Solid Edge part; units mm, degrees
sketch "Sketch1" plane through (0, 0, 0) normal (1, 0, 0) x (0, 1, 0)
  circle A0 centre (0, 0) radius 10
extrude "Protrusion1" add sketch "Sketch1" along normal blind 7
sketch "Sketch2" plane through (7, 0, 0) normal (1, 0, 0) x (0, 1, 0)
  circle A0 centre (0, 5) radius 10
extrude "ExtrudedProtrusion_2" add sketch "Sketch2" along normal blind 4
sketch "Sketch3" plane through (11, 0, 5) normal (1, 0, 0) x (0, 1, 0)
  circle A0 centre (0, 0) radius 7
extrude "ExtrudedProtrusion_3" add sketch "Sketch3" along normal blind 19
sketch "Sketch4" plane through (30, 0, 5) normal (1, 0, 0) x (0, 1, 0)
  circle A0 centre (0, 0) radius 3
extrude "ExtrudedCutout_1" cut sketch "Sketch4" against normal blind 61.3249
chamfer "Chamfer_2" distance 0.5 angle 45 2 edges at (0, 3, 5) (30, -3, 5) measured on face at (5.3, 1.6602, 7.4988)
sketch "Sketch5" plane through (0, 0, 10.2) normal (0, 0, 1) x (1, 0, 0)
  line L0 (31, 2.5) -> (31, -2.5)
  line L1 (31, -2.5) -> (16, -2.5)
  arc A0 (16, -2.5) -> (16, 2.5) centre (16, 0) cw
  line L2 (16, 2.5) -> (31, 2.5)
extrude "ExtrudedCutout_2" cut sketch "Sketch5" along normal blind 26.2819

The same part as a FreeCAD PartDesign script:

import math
import FreeCAD as App
import Part
import Sketcher
from FreeCAD import Vector


def edges_at(feature, points):
    """Names of the edges that pass closest to the given points."""
    edges = feature.Shape.Edges
    near = lambda p: min(range(len(edges)), key=lambda i: edges[i].distToShape(Part.Vertex(*p))[0])
    return sorted({f"Edge{near(p) + 1}" for p in points})

doc = App.newDocument("Part")
body = doc.addObject("PartDesign::Body", "Body")

# Sketch on YZ plane
sketch1 = body.newObject("Sketcher::SketchObject", "Sketch")
sketch1.AttachmentSupport = (doc.getObject("YZ_Plane"), [""])
sketch1.MapMode = "FlatFace"
sketch1.addGeometry(Part.Circle(Vector(0, 0, 0), Vector(0, 0, 1), 10), False)
sketch1.addConstraint([
    Sketcher.Constraint("Coincident", 0, 3, -1, 1),
    Sketcher.Constraint("Diameter", 0, 20.0),
])
pad1 = body.newObject("PartDesign::Pad", "Pad")
pad1.Profile = sketch1
pad1.Length = 7

# Sketch on YZ plane
sketch2 = body.newObject("Sketcher::SketchObject", "Sketch001")
sketch2.AttachmentSupport = (doc.getObject("YZ_Plane"), [""])
sketch2.MapMode = "FlatFace"
sketch2.AttachmentOffset = App.Placement(Vector(0, 0, 7), App.Rotation())
sketch2.addGeometry(Part.Circle(Vector(0, 5, 0), Vector(0, 0, 1), 10), False)
sketch2.addConstraint([
    Sketcher.Constraint("PointOnObject", 0, 3, -2),
    Sketcher.Constraint("Diameter", 0, 20.0),
    Sketcher.Constraint("DistanceY", -1, 1, 0, 3, 5.0),
])
pad2 = body.newObject("PartDesign::Pad", "Pad001")
pad2.Profile = sketch2
pad2.Length = 4

# Sketch on YZ plane
sketch3 = body.newObject("Sketcher::SketchObject", "Sketch002")
sketch3.AttachmentSupport = (doc.getObject("YZ_Plane"), [""])
sketch3.MapMode = "FlatFace"
sketch3.AttachmentOffset = App.Placement(Vector(0, 0, 11), App.Rotation())
sketch3.addGeometry(Part.Circle(Vector(0, 5, 0), Vector(0, 0, 1), 7), False)
sketch3.addConstraint([
    Sketcher.Constraint("PointOnObject", 0, 3, -2),
    Sketcher.Constraint("Diameter", 0, 14.0),
    Sketcher.Constraint("DistanceY", -1, 1, 0, 3, 5.0),
])
pad3 = body.newObject("PartDesign::Pad", "Pad002")
pad3.Profile = sketch3
pad3.Length = 19

# Sketch on YZ plane
sketch4 = body.newObject("Sketcher::SketchObject", "Sketch003")
sketch4.AttachmentSupport = (doc.getObject("YZ_Plane"), [""])
sketch4.MapMode = "FlatFace"
sketch4.AttachmentOffset = App.Placement(Vector(0, 0, 30), App.Rotation())
sketch4.addGeometry(Part.Circle(Vector(0, 5, 0), Vector(0, 0, 1), 3), False)
sketch4.addConstraint([
    Sketcher.Constraint("PointOnObject", 0, 3, -2),
    Sketcher.Constraint("Diameter", 0, 6.0),
    Sketcher.Constraint("DistanceY", -1, 1, 0, 3, 5.0),
])
pocket1 = body.newObject("PartDesign::Pocket", "Pocket")
pocket1.Profile = sketch4
pocket1.Length = 61.3249
doc.recompute()

chamfer = body.newObject("PartDesign::Chamfer", "Chamfer")
chamfer.Base = (pocket1, edges_at(pocket1, [(0, 3, 5), (30, -3, 5)]))
chamfer.Size = 0.5

# Sketch on XY plane
sketch5 = body.newObject("Sketcher::SketchObject", "Sketch004")
sketch5.AttachmentSupport = (doc.getObject("XY_Plane"), [""])
sketch5.MapMode = "FlatFace"
sketch5.AttachmentOffset = App.Placement(Vector(0, 0, 10.2), App.Rotation())
sketch5.addGeometry([
    Part.LineSegment(Vector(31, -2.5, 0), Vector(31, 2.5, 0)),
    Part.LineSegment(Vector(31, 2.5, 0), Vector(16, 2.5, 0)),
    Part.ArcOfCircle(Part.Circle(Vector(16, 0, 0), Vector(0, 0, 1), 2.5), math.radians(90), math.radians(270)),
    Part.LineSegment(Vector(16, -2.5, 0), Vector(31, -2.5, 0)),
], False)
sketch5.addConstraint([
    Sketcher.Constraint("Coincident", 0, 2, 1, 1),
    Sketcher.Constraint("Tangent", 1, 2, 2, 1),
    Sketcher.Constraint("Tangent", 2, 2, 3, 1),
    Sketcher.Constraint("Coincident", 3, 2, 0, 1),
    Sketcher.Constraint("Vertical", 0),
    Sketcher.Constraint("Horizontal", 1),
    Sketcher.Constraint("Horizontal", 3),
    Sketcher.Constraint("PointOnObject", 2, 3, -1),
    Sketcher.Constraint("Radius", 2, 2.5),
    Sketcher.Constraint("DistanceX", 1, 2, 1, 1, 15.0),
    Sketcher.Constraint("DistanceX", -1, 1, 2, 3, 16.0),
])
pocket2 = body.newObject("PartDesign::Pocket", "Pocket001")
pocket2.Profile = sketch5
pocket2.Length = 26.2819
pocket2.Reversed = True

doc.recompute()
